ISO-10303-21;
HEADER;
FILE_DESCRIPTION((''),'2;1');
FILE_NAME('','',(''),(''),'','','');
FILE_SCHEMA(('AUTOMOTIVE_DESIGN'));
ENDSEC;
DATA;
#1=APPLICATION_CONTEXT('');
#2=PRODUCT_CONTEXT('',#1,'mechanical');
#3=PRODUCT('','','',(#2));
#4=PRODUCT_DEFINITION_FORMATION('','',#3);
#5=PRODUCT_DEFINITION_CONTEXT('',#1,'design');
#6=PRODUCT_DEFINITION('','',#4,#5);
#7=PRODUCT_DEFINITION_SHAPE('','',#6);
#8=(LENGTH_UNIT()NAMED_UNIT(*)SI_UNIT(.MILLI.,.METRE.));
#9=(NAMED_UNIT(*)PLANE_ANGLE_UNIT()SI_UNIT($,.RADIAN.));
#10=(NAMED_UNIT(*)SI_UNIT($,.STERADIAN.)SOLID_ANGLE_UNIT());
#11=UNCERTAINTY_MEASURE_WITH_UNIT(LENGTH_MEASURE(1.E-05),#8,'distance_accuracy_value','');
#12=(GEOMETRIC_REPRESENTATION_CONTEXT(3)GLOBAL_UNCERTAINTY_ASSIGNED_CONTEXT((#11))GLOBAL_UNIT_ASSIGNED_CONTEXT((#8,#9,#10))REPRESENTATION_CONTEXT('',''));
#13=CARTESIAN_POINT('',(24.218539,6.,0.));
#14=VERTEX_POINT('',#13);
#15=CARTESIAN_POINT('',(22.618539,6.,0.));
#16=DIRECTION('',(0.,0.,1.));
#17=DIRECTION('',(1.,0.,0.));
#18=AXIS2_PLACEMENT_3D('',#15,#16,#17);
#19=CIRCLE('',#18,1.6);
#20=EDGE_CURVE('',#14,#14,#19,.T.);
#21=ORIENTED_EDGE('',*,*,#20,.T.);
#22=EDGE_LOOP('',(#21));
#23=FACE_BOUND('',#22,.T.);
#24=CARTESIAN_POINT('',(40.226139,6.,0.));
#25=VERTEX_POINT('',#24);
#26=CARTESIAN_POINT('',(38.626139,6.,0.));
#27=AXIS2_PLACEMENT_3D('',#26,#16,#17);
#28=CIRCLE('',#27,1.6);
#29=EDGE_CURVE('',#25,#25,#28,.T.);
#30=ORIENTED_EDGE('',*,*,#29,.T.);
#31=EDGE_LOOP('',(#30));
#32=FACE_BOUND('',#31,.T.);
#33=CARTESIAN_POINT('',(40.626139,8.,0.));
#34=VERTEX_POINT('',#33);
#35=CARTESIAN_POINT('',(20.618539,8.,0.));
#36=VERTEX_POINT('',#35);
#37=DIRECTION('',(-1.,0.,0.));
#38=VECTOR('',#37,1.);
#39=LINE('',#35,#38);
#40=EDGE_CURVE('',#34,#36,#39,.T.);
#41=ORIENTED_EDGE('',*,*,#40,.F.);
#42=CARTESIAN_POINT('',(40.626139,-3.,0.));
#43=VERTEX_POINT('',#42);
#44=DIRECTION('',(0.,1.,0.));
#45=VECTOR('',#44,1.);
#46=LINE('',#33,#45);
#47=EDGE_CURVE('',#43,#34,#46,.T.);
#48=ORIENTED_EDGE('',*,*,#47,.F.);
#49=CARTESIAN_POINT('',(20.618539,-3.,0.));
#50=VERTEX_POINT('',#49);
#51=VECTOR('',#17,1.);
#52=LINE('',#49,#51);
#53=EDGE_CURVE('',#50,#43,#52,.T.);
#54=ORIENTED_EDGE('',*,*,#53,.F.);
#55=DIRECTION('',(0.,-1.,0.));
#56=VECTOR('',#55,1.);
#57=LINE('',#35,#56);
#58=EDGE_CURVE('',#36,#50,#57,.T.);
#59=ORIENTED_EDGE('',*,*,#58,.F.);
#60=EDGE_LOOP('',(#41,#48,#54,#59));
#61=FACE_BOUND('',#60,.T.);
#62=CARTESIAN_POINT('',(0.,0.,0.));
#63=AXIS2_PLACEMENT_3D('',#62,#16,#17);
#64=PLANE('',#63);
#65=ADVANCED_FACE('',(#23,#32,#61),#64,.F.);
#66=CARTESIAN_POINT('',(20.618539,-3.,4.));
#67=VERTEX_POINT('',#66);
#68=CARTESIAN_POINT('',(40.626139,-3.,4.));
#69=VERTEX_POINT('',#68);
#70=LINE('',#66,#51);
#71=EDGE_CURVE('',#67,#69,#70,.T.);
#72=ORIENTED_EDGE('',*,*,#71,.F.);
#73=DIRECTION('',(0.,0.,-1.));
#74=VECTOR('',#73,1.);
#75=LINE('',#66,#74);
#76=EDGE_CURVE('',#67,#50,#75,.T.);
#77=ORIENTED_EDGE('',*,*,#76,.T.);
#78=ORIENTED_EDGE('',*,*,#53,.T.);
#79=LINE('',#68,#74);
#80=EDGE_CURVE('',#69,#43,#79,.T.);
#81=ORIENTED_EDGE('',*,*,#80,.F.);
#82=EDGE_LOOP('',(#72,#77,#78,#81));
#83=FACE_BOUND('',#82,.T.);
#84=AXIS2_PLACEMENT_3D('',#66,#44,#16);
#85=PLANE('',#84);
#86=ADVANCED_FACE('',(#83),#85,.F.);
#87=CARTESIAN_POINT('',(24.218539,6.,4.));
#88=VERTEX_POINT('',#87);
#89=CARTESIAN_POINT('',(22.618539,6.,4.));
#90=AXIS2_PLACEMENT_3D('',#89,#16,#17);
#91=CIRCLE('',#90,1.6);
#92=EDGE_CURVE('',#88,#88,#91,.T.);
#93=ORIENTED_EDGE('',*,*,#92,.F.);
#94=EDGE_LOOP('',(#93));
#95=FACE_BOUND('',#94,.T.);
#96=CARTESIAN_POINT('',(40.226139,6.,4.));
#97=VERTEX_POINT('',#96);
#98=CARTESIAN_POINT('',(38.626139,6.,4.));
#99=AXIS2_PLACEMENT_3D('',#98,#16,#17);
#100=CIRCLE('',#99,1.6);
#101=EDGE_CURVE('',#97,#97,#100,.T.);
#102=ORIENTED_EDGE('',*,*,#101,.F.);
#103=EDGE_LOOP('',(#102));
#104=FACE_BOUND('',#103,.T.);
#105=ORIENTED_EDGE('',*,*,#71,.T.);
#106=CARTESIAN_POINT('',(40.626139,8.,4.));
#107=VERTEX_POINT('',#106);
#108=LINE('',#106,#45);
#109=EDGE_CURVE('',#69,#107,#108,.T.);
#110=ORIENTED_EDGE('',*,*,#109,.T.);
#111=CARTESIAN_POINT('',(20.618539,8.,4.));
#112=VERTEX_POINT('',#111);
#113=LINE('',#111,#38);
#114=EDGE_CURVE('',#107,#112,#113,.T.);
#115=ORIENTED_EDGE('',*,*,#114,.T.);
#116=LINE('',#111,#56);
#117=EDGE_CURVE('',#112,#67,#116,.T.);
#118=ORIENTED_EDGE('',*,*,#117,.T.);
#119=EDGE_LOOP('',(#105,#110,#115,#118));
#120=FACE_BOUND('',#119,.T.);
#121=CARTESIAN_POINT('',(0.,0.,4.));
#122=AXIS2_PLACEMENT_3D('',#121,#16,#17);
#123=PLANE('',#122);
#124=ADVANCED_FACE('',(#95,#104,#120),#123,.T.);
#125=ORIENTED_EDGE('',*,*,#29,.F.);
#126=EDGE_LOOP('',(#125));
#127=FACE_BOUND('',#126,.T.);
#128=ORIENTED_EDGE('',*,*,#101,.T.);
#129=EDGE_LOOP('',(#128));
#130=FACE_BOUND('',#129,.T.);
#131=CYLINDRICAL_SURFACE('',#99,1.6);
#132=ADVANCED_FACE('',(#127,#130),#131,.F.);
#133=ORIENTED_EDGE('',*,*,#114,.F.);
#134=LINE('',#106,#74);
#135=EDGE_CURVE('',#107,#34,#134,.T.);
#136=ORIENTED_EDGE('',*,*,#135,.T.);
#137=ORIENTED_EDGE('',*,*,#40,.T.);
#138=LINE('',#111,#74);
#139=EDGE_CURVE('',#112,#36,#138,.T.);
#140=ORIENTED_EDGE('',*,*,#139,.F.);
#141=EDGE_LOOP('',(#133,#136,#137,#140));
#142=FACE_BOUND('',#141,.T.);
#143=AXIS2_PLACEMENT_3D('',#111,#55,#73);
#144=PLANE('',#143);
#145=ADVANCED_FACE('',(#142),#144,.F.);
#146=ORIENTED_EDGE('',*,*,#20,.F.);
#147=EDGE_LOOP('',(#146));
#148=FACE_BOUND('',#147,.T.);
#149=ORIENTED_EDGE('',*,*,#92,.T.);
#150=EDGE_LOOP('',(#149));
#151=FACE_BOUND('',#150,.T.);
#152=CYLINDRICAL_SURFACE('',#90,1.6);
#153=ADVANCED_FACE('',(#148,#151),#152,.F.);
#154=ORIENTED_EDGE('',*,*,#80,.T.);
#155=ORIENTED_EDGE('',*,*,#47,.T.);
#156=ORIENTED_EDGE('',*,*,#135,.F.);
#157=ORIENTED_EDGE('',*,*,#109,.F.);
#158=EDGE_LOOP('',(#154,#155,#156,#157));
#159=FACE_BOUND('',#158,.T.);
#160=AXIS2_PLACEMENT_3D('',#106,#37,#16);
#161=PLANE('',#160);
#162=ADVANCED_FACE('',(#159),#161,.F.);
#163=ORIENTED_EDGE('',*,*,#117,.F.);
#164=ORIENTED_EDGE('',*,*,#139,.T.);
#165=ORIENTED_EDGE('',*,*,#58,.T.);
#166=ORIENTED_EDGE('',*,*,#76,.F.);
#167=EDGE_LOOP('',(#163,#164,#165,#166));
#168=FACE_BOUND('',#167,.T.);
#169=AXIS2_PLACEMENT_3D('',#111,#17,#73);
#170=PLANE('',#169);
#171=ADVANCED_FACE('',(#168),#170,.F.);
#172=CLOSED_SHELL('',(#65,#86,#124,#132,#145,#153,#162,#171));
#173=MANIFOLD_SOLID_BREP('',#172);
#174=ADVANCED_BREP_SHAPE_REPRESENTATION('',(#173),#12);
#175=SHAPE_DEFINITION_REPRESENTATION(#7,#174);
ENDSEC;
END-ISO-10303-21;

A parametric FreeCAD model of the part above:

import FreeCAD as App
import Part
import Sketcher

doc = App.newDocument("Part")
params = doc.addObject("Spreadsheet::Sheet", "Params")
for row, (alias, value) in enumerate([
    ("sketch1_height", "11 mm"),
    ("pad1_length", "4 mm"),
    ("sketch2_diameter", "3.2 mm"),
    ("hole_diameter", "3.2 mm"),
], start=1):
    params.set(f"A{row}", alias)
    params.set(f"B{row}", "=" + value)
    params.setAlias(f"B{row}", alias)

body = doc.addObject("PartDesign::Body", "Body")

# Sketch on XY plane
sketch1 = body.newObject("Sketcher::SketchObject", "Sketch")
sketch1.AttachmentSupport = (doc.getObject("XY_Plane"), [""])
sketch1.MapMode = "FlatFace"
sketch1.addGeometry([
    Part.LineSegment(App.Vector(21, 8, 0), App.Vector(21, -3, 0)),
    Part.LineSegment(App.Vector(21, -3, 0), App.Vector(41, -3, 0)),
    Part.LineSegment(App.Vector(41, -3, 0), App.Vector(41, 8, 0)),
    Part.LineSegment(App.Vector(41, 8, 0), App.Vector(21, 8, 0)),
], False)
sketch1.addConstraint([
    Sketcher.Constraint("Coincident", 0, 2, 1, 1),
    Sketcher.Constraint("Coincident", 1, 2, 2, 1),
    Sketcher.Constraint("Coincident", 2, 2, 3, 1),
    Sketcher.Constraint("Coincident", 3, 2, 0, 1),
    Sketcher.Constraint("Vertical", 0),
    Sketcher.Constraint("Horizontal", 1),
    Sketcher.Constraint("Vertical", 2),
    Sketcher.Constraint("Horizontal", 3),
    Sketcher.Constraint("DistanceY", 0, 2, 0, 1, 11.0),
    Sketcher.Constraint("DistanceY", 0, 2, -1, 1, 3.0),
    Sketcher.Constraint("DistanceX", 1, 1, 1, 2, 20.0076),
    Sketcher.Constraint("DistanceX", -1, 1, 0, 2, 20.618539),
])
sketch1.setExpression("Constraints[8]", "Params.sketch1_height")
pad1 = body.newObject("PartDesign::Pad", "Pad")
pad1.Profile = sketch1
pad1.setExpression("Length", "Params.pad1_length")

# Sketch on XY plane
sketch2 = body.newObject("Sketcher::SketchObject", "Sketch001")
sketch2.AttachmentSupport = (doc.getObject("XY_Plane"), [""])
sketch2.MapMode = "FlatFace"
sketch2.AttachmentOffset = App.Placement(App.Vector(0, 0, 4), App.Rotation())
sketch2.addGeometry([
    Part.Circle(App.Vector(38.6, 6, 0), App.Vector(0, 0, 1), 1.6),
    Part.Circle(App.Vector(22.6, 6, 0), App.Vector(0, 0, 1), 1.6),
], False)
sketch2.addConstraint([
    Sketcher.Constraint("Equal", 0, 1),
    Sketcher.Constraint("Horizontal", 0, 3, 1, 3),
    Sketcher.Constraint("Diameter", 0, 3.2),
    Sketcher.Constraint("DistanceY", -1, 1, 0, 3, 6.0),
    Sketcher.Constraint("DistanceX", 1, 3, 0, 3, 16.0076),
    Sketcher.Constraint("DistanceX", -1, 1, 0, 3, 38.626139),
])
sketch2.setExpression("Constraints[2]", "Params.sketch2_diameter")
doc.recompute()
hole = body.newObject("PartDesign::Hole", "Hole")
hole.Profile = sketch2
hole.ThreadType = "None"
hole.setExpression("Diameter", "Params.hole_diameter")
hole.DepthType = "ThroughAll"

doc.recompute()
